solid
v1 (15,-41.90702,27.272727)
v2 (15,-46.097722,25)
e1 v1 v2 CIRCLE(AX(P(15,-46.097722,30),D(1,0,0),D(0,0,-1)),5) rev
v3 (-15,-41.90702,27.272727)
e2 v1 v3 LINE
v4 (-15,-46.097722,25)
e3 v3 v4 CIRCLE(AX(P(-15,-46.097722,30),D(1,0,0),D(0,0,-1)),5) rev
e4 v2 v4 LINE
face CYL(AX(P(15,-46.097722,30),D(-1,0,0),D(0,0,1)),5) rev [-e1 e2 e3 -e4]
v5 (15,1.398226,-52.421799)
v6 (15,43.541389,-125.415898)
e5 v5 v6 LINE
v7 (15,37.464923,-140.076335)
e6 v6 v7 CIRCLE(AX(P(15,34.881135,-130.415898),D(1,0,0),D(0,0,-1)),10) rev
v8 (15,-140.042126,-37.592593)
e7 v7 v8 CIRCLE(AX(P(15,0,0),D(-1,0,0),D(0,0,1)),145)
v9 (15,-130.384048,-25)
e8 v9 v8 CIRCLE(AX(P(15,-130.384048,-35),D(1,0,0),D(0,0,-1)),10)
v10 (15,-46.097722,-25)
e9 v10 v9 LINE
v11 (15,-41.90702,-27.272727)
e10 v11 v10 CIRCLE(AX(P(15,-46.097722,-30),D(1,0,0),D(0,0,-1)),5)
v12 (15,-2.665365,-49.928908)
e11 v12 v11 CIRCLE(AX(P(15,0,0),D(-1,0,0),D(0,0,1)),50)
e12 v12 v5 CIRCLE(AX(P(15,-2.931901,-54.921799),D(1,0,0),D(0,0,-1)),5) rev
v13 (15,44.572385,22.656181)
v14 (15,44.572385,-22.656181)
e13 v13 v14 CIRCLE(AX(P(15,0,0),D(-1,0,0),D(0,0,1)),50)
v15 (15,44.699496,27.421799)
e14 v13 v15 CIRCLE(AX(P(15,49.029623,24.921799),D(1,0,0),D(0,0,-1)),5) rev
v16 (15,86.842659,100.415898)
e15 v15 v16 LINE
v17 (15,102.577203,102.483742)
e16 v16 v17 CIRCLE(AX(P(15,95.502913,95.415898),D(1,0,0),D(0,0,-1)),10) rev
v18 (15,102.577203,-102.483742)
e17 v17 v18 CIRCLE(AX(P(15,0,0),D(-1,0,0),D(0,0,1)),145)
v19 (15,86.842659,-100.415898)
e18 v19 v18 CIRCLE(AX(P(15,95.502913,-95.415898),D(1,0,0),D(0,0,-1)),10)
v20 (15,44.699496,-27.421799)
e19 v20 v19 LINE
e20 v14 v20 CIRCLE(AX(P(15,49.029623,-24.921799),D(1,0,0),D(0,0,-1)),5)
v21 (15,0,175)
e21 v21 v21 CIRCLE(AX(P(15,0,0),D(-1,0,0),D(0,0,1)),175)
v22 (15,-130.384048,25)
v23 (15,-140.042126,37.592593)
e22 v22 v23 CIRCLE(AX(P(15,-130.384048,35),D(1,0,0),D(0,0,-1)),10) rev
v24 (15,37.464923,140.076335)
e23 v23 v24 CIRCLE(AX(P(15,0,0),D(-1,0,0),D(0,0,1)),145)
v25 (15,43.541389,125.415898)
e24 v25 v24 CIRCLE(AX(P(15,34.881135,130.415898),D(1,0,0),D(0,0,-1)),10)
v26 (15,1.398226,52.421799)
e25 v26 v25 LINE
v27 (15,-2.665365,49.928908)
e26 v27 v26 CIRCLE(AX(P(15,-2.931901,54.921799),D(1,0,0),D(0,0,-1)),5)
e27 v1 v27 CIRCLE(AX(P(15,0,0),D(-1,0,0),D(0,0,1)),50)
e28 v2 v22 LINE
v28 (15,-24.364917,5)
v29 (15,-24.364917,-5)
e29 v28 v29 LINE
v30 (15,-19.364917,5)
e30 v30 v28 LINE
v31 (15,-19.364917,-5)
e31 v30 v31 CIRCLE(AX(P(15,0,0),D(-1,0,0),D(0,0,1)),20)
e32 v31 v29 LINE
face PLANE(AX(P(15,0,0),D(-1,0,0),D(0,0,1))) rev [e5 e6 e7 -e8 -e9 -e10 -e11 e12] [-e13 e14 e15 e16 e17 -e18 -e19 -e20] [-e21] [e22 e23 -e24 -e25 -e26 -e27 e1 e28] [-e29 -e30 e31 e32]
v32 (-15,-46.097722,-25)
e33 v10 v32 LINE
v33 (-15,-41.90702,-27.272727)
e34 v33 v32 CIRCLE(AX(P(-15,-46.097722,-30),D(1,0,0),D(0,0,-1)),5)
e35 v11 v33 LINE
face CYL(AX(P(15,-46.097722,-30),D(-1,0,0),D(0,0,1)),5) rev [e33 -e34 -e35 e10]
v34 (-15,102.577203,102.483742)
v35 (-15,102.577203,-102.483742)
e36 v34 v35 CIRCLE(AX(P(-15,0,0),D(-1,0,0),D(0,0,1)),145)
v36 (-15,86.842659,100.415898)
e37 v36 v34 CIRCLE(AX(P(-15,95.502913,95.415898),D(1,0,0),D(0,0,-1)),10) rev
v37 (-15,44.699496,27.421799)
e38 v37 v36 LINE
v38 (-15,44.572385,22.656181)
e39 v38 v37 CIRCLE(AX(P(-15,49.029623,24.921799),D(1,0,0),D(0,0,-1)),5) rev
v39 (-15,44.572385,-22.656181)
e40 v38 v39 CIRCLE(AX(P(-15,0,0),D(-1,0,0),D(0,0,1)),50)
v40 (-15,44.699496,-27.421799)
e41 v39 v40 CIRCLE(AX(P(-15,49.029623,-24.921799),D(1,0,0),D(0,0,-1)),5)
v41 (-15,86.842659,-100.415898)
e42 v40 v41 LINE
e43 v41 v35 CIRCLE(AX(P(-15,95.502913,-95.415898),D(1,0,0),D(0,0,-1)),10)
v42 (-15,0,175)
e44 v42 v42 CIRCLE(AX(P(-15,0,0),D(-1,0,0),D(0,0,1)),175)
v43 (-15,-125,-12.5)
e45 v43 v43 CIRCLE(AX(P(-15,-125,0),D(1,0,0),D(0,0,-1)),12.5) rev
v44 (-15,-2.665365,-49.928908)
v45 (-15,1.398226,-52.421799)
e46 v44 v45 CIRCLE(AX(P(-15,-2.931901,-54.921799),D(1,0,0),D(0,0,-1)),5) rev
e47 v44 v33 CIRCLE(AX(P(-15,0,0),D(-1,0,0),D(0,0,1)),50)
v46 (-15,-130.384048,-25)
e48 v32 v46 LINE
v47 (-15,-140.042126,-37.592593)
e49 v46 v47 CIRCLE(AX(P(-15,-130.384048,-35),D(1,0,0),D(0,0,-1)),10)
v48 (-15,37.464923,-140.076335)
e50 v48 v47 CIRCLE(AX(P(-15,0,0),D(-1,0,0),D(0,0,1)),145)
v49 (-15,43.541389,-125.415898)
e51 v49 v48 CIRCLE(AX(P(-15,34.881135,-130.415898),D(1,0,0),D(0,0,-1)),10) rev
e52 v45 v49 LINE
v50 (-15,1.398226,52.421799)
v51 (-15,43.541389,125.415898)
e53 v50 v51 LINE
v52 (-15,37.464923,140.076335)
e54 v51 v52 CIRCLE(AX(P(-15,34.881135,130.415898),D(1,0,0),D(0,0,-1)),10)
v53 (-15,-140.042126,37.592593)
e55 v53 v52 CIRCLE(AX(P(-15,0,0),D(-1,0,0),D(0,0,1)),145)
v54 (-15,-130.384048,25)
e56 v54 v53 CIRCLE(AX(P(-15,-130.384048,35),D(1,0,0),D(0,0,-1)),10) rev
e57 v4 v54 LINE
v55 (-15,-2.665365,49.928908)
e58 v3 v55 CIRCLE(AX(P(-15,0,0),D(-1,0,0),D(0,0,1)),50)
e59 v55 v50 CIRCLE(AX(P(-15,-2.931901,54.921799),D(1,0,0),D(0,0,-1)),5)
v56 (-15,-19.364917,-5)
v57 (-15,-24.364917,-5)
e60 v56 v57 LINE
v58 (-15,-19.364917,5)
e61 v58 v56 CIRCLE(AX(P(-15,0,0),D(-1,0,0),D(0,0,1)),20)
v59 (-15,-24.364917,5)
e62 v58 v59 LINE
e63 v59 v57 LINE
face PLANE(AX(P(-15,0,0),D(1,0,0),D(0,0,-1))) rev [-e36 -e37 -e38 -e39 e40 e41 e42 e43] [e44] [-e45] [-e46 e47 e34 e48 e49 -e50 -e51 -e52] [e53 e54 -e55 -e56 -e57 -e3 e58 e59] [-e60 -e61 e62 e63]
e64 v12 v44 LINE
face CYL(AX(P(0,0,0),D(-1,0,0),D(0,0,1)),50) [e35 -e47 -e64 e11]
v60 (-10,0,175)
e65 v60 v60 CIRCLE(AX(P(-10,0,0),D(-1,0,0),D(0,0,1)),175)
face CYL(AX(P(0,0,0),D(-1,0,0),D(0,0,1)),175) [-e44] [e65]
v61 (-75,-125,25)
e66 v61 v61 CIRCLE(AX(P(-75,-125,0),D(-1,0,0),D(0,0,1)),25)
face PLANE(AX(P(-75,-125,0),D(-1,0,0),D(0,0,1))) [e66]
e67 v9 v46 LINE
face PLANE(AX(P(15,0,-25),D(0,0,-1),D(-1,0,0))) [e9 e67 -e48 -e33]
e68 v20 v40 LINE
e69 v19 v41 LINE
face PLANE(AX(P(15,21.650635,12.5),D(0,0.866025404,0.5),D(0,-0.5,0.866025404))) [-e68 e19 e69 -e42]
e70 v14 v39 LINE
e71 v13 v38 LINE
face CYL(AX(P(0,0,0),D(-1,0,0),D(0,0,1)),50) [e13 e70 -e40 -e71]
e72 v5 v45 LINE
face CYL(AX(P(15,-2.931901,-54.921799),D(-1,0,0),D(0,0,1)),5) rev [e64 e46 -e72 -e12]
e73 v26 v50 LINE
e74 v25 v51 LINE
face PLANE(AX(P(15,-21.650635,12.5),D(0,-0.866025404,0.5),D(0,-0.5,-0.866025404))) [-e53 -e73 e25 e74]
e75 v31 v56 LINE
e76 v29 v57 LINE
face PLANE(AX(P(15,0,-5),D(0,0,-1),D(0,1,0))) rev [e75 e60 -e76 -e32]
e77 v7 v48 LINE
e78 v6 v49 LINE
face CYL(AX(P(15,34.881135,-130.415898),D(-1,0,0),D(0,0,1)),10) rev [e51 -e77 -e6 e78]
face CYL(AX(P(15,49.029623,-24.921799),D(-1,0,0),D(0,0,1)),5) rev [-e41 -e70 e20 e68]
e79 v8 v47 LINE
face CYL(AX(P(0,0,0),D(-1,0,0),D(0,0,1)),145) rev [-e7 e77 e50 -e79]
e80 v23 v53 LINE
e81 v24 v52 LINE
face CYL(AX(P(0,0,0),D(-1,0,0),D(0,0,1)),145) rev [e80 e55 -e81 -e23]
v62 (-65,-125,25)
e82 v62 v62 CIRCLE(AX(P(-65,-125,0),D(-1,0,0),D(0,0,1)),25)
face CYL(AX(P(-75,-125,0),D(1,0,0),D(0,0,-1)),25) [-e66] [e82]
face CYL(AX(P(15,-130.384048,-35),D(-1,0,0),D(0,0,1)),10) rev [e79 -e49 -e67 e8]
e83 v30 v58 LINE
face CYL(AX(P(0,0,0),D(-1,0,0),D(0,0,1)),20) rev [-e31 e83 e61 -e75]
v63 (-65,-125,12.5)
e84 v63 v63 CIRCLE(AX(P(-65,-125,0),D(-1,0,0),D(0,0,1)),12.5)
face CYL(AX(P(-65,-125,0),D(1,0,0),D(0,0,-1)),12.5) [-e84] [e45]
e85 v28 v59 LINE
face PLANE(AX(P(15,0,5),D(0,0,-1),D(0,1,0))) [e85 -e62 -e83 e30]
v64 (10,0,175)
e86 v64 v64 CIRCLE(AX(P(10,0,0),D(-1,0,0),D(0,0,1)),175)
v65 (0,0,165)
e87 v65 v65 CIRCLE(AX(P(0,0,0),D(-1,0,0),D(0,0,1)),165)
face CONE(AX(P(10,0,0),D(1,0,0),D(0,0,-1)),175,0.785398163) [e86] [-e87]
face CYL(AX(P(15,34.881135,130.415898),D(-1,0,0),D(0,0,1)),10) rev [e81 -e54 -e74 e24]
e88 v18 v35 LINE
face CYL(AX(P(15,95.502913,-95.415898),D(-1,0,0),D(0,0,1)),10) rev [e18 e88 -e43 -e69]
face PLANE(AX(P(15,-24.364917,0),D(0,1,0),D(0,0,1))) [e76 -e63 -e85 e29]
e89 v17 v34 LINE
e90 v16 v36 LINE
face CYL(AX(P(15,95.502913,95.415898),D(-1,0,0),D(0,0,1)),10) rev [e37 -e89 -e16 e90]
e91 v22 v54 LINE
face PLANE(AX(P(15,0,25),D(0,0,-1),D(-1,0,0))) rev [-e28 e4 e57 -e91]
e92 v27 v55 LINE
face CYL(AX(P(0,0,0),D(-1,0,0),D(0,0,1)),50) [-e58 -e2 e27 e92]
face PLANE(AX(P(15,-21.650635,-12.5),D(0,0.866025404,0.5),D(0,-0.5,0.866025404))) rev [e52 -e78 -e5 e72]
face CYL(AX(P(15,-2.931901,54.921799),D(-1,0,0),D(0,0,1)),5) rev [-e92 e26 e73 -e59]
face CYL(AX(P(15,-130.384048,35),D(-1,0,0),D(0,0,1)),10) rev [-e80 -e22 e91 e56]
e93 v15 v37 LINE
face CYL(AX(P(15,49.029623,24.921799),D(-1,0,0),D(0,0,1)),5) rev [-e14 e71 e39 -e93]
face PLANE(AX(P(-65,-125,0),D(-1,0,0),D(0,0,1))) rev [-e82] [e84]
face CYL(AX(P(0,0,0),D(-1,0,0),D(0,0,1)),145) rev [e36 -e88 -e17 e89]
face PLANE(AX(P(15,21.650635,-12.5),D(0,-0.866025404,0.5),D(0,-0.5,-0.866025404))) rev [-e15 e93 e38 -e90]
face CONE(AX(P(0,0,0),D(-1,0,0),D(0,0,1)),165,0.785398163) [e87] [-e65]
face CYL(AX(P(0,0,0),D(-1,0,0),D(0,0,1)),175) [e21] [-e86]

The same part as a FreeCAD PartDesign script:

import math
import FreeCAD as App
import Part
import Sketcher
from FreeCAD import Vector
Q = App.Units.Quantity

doc = App.newDocument("Part")
body = doc.addObject("PartDesign::Body", "Body")
body.AllowCompound = True

# Sketch on XZ plane
sketch1 = doc.addObject("Sketcher::SketchObject", "Sketch")
body.addObject(sketch1)
sketch1.AttachmentSupport = (doc.XZ_Plane, [""])
sketch1.MapMode = "FlatFace"
sketch1.addGeometry([
    Part.LineSegment(Vector(-15, -175, 0), Vector(-15, -145, 0)),  # 0
    Part.LineSegment(Vector(-15, -145, 0), Vector(15, -145, 0)),  # 1
    Part.LineSegment(Vector(15, -145, 0), Vector(15, -175, 0)),  # 2
    Part.LineSegment(Vector(15, -175, 0), Vector(10, -175, 0)),  # 3
    Part.LineSegment(Vector(10, -175, 0), Vector(0, -165, 0)),  # 4
    Part.LineSegment(Vector(0, -165, 0), Vector(-10, -175, 0)),  # 5
    Part.LineSegment(Vector(-10, -175, 0), Vector(-15, -175, 0)),  # 6
    Part.LineSegment(Vector(-15, -50, 0), Vector(-15, -20, 0)),  # 7
    Part.LineSegment(Vector(-15, -20, 0), Vector(15, -20, 0)),  # 8
    Part.LineSegment(Vector(15, -20, 0), Vector(15, -50, 0)),  # 9
    Part.LineSegment(Vector(15, -50, 0), Vector(-15, -50, 0)),  # 10
], False)
sketch1.addConstraint([
    Sketcher.Constraint("Coincident", 0, 2, 1, 1),
    Sketcher.Constraint("Coincident", 1, 2, 2, 1),
    Sketcher.Constraint("Coincident", 2, 2, 3, 1),
    Sketcher.Constraint("Coincident", 3, 2, 4, 1),
    Sketcher.Constraint("Coincident", 4, 2, 5, 1),
    Sketcher.Constraint("Coincident", 5, 2, 6, 1),
    Sketcher.Constraint("Coincident", 6, 2, 0, 1),
    Sketcher.Constraint("Coincident", 7, 2, 8, 1),
    Sketcher.Constraint("Coincident", 8, 2, 9, 1),
    Sketcher.Constraint("Coincident", 9, 2, 10, 1),
    Sketcher.Constraint("Coincident", 10, 2, 7, 1),
    Sketcher.Constraint("Vertical", 0),
    Sketcher.Constraint("Horizontal", 1),
    Sketcher.Constraint("Vertical", 2),
    Sketcher.Constraint("Horizontal", 3),
    Sketcher.Constraint("Horizontal", 6),
    Sketcher.Constraint("Vertical", 7),
    Sketcher.Constraint("Horizontal", 8),
    Sketcher.Constraint("Vertical", 9),
    Sketcher.Constraint("Horizontal", 10),
    Sketcher.Constraint("Symmetric", 3, 2, 5, 2, -2),
    Sketcher.Constraint("PointOnObject", 4, 2, -2),
    Sketcher.Constraint("Perpendicular", 4, 5),
    Sketcher.Constraint("Vertical", 6, 2, 7, 2),
    Sketcher.Constraint("Vertical", 2, 2, 8, 2),
    Sketcher.Constraint("Equal", 3, 6),
    Sketcher.Constraint("Equal", 10, 0),
    Sketcher.Constraint("Equal", 2, 7),
    Sketcher.Constraint("DistanceX", 1, 1, 1, 2, Q("30 mm")),
    Sketcher.Constraint("DistanceX", 3, 2, 3, 1, Q("5 mm")),
    Sketcher.Constraint("DistanceY", 0, 2, -1, 1, Q("145 mm")),
    Sketcher.Constraint("DistanceY", 7, 2, -1, 1, Q("20 mm")),
])
revolution = doc.addObject("PartDesign::Revolution", "Revolution")
body.addObject(revolution)
revolution.Profile = sketch1
revolution.ReferenceAxis = (sketch1, ["H_Axis"])
revolution.Angle = 360

# Sketch on YZ plane
sketch2 = doc.addObject("Sketcher::SketchObject", "Sketch001")
body.addObject(sketch2)
sketch2.AttachmentSupport = (doc.YZ_Plane, [""])
sketch2.MapMode = "FlatFace"
sketch2.addGeometry([
    Part.LineSegment(Vector(-130.4, -25, 0), Vector(-46.1, -25, 0)),  # 0
    Part.ArcOfCircle(Part.Circle(Vector(-46.1, -30, 0), Vector(0, 0, 1), 5), math.radians(33), math.radians(90)),  # 1
    Part.ArcOfCircle(Part.Circle(Vector(0, 0, 0), Vector(0, 0, 1), 50), math.radians(147), math.radians(213)),  # 2
    Part.ArcOfCircle(Part.Circle(Vector(-46.1, 30, 0), Vector(0, 0, 1), 5), math.radians(-90), math.radians(-33)),  # 3
    Part.LineSegment(Vector(-46.1, 25, 0), Vector(-130.4, 25, 0)),  # 4
    Part.ArcOfCircle(Part.Circle(Vector(-130.4, 35, 0), Vector(0, 0, 1), 10), math.radians(165), math.radians(270)),  # 5
    Part.ArcOfCircle(Part.Circle(Vector(0, 0, 0), Vector(0, 0, 1), 145), math.radians(165), math.radians(195)),  # 6
    Part.ArcOfCircle(Part.Circle(Vector(-130.4, -35, 0), Vector(0, 0, 1), 10), math.radians(90), math.radians(195)),  # 7
    Part.ArcOfCircle(Part.Circle(Vector(-2.9, 54.9, 0), Vector(0, 0, 1), 5), math.radians(-87), math.radians(-30)),  # 8
    Part.ArcOfCircle(Part.Circle(Vector(0, 0, 0), Vector(0, 0, 1), 50), math.radians(27), math.radians(93)),  # 9
    Part.ArcOfCircle(Part.Circle(Vector(49, 24.9, 0), Vector(0, 0, 1), 5), math.radians(150), math.radians(207)),  # 10
    Part.LineSegment(Vector(44.7, 27.4, 0), Vector(86.8, 100.4, 0)),  # 11
    Part.ArcOfCircle(Part.Circle(Vector(95.5, 95.4, 0), Vector(0, 0, 1), 10), math.radians(45), math.radians(150)),  # 12
    Part.ArcOfCircle(Part.Circle(Vector(0, 0, 0), Vector(0, 0, 1), 145), math.radians(45), math.radians(75)),  # 13
    Part.ArcOfCircle(Part.Circle(Vector(34.9, 130.4, 0), Vector(0, 0, 1), 10), math.radians(-30), math.radians(75)),  # 14
    Part.LineSegment(Vector(43.5, 125.4, 0), Vector(1.4, 52.4, 0)),  # 15
    Part.ArcOfCircle(Part.Circle(Vector(0, 0, 0), Vector(0, 0, 1), 50), math.radians(-93), math.radians(-27)),  # 16
    Part.ArcOfCircle(Part.Circle(Vector(-2.9, -54.9, 0), Vector(0, 0, 1), 5), math.radians(30), math.radians(87)),  # 17
    Part.LineSegment(Vector(1.4, -52.4, 0), Vector(43.5, -125.4, 0)),  # 18
    Part.ArcOfCircle(Part.Circle(Vector(34.9, -130.4, 0), Vector(0, 0, 1), 10), math.radians(-75), math.radians(30)),  # 19
    Part.ArcOfCircle(Part.Circle(Vector(0, 0, 0), Vector(0, 0, 1), 145), math.radians(-75), math.radians(-45)),  # 20
    Part.ArcOfCircle(Part.Circle(Vector(95.5, -95.4, 0), Vector(0, 0, 1), 10), math.radians(-150), math.radians(-45)),  # 21
    Part.LineSegment(Vector(86.8, -100.4, 0), Vector(44.7, -27.4, 0)),  # 22
    Part.ArcOfCircle(Part.Circle(Vector(49, -24.9, 0), Vector(0, 0, 1), 5), math.radians(153), math.radians(210)),  # 23
], False)
sketch2.addConstraint([
    Sketcher.Constraint("Tangent", 0, 2, 1, 2),
    Sketcher.Constraint("Tangent", 1, 1, 2, 2),
    Sketcher.Constraint("Tangent", 2, 1, 3, 2),
    Sketcher.Constraint("Tangent", 3, 1, 4, 1),
    Sketcher.Constraint("Tangent", 4, 2, 5, 2),
    Sketcher.Constraint("Tangent", 5, 1, 6, 1),
    Sketcher.Constraint("Tangent", 6, 2, 7, 2),
    Sketcher.Constraint("Tangent", 7, 1, 0, 1),
    Sketcher.Constraint("Tangent", 8, 1, 9, 2),
    Sketcher.Constraint("Tangent", 9, 1, 10, 2),
    Sketcher.Constraint("Tangent", 10, 1, 11, 1),
    Sketcher.Constraint("Tangent", 11, 2, 12, 2),
    Sketcher.Constraint("Tangent", 12, 1, 13, 1),
    Sketcher.Constraint("Tangent", 13, 2, 14, 2),
    Sketcher.Constraint("Tangent", 14, 1, 15, 1),
    Sketcher.Constraint("Tangent", 15, 2, 8, 2),
    Sketcher.Constraint("Tangent", 16, 1, 17, 2),
    Sketcher.Constraint("Tangent", 17, 1, 18, 1),
    Sketcher.Constraint("Tangent", 18, 2, 19, 2),
    Sketcher.Constraint("Tangent", 19, 1, 20, 1),
    Sketcher.Constraint("Tangent", 20, 2, 21, 2),
    Sketcher.Constraint("Tangent", 21, 1, 22, 1),
    Sketcher.Constraint("Tangent", 22, 2, 23, 2),
    Sketcher.Constraint("Tangent", 23, 1, 16, 2),
    Sketcher.Constraint("Horizontal", 0),
    Sketcher.Constraint("Horizontal", 4),
    Sketcher.Constraint("Coincident", 2, 3, -1, 1),
    Sketcher.Constraint("Coincident", 6, 3, -1, 1),
    Sketcher.Constraint("Coincident", 9, 3, -1, 1),
    Sketcher.Constraint("Coincident", 13, 3, -1, 1),
    Sketcher.Constraint("Coincident", 16, 3, -1, 1),
    Sketcher.Constraint("Coincident", 20, 3, -1, 1),
    Sketcher.Constraint("Equal", 1, 3),
    Sketcher.Constraint("Equal", 5, 7),
    Sketcher.Constraint("Equal", 3, 8),
    Sketcher.Constraint("Equal", 2, 9),
    Sketcher.Constraint("Equal", 8, 10),
    Sketcher.Constraint("Equal", 7, 12),
    Sketcher.Constraint("Equal", 6, 13),
    Sketcher.Constraint("Equal", 12, 14),
    Sketcher.Constraint("Equal", 9, 16),
    Sketcher.Constraint("Equal", 10, 17),
    Sketcher.Constraint("Equal", 14, 19),
    Sketcher.Constraint("Equal", 13, 20),
    Sketcher.Constraint("Equal", 19, 21),
    Sketcher.Constraint("Equal", 17, 23),
    Sketcher.Constraint("Symmetric", 15, 2, 17, 1, -1),
    Sketcher.Constraint("Symmetric", 11, 2, 21, 1, -1),
    Sketcher.Constraint("Parallel", 11, 15),
    Sketcher.Constraint("Vertical", 1, 3, 3, 3),
    Sketcher.Constraint("Equal", 11, 15),
    Sketcher.Constraint("Radius", 1, Q("5 mm")),
    Sketcher.Constraint("Radius", 2, Q("50 mm")),
    Sketcher.Constraint("Radius", 5, Q("10 mm")),
    Sketcher.Constraint("Radius", 6, Q("145 mm")),
    Sketcher.Constraint("Angle", 11, Q("60 deg")),
    Sketcher.Constraint("DistanceY", 1, 3, -1, 1, Q("30 mm")),
    Sketcher.Constraint("DistanceY", 10, 3, 8, 3, Q("30 mm")),
])
pad1 = doc.addObject("PartDesign::Pad", "Pad")
body.addObject(pad1)
pad1.Profile = sketch2
pad1.Length = 30
pad1.Midplane = True

# Sketch on YZ plane
sketch3 = doc.addObject("Sketcher::SketchObject", "Sketch002")
body.addObject(sketch3)
sketch3.AttachmentSupport = (doc.YZ_Plane, [""])
sketch3.MapMode = "FlatFace"
sketch3.AttachmentOffset = App.Placement(Vector(0, 0, -15), App.Rotation())
sketch3.addGeometry(Part.Circle(Vector(-125, 0, 0), Vector(0, 0, 1), 12), False)
sketch3.addConstraint([
    Sketcher.Constraint("PointOnObject", 0, 3, -1),
    Sketcher.Constraint("Diameter", 0, Q("25 mm")),
    Sketcher.Constraint("DistanceX", 0, 3, -1, 1, Q("125 mm")),
])
pad2 = doc.addObject("PartDesign::Pad", "Pad001")
body.addObject(pad2)
pad2.Profile = sketch3
pad2.Length = 50
pad2.Reversed = True

# Sketch on YZ plane
sketch4 = doc.addObject("Sketcher::SketchObject", "Sketch003")
body.addObject(sketch4)
sketch4.AttachmentSupport = (doc.YZ_Plane, [""])
sketch4.MapMode = "FlatFace"
sketch4.AttachmentOffset = App.Placement(Vector(0, 0, -65), App.Rotation())
sketch4.addGeometry(Part.Circle(Vector(-125, 0, 0), Vector(0, 0, 1), 25), False)
sketch4.addConstraint([
    Sketcher.Constraint("PointOnObject", 0, 3, -1),
    Sketcher.Constraint("Diameter", 0, Q("50 mm")),
    Sketcher.Constraint("DistanceX", 0, 3, -1, 1, Q("125 mm")),
])
pad3 = doc.addObject("PartDesign::Pad", "Pad002")
body.addObject(pad3)
pad3.Profile = sketch4
pad3.Length = 10
pad3.Reversed = True

# Sketch on YZ plane
sketch5 = doc.addObject("Sketcher::SketchObject", "Sketch004")
body.addObject(sketch5)
sketch5.AttachmentSupport = (doc.YZ_Plane, [""])
sketch5.MapMode = "FlatFace"
sketch5.AttachmentOffset = App.Placement(Vector(0, 0, -15), App.Rotation())
sketch5.addGeometry([
    Part.LineSegment(Vector(-24, 5, 0), Vector(-19, 5, 0)),
    Part.ArcOfCircle(Part.Circle(Vector(0, 0, 0), Vector(0, 0, 1), 20), math.radians(166), math.radians(194)),
    Part.LineSegment(Vector(-19, -5, 0), Vector(-24, -5, 0)),
    Part.LineSegment(Vector(-24, -5, 0), Vector(-24, 5, 0)),
], False)
sketch5.addConstraint([
    Sketcher.Constraint("Coincident", 0, 2, 1, 1),
    Sketcher.Constraint("Coincident", 1, 2, 2, 1),
    Sketcher.Constraint("Coincident", 2, 2, 3, 1),
    Sketcher.Constraint("Coincident", 3, 2, 0, 1),
    Sketcher.Constraint("Horizontal", 0),
    Sketcher.Constraint("Horizontal", 2),
    Sketcher.Constraint("Vertical", 3),
    Sketcher.Constraint("Coincident", 1, 3, -1, 1),
    Sketcher.Constraint("Vertical", 0, 2, 1, 2),
    Sketcher.Constraint("Radius", 1, Q("20 mm")),
    Sketcher.Constraint("DistanceX", 0, 1, 0, 2, Q("5 mm")),
    Sketcher.Constraint("DistanceY", 3, 1, 3, 2, Q("10 mm")),
])
pocket1 = doc.addObject("PartDesign::Pocket", "Pocket")
body.addObject(pocket1)
pocket1.Profile = sketch5
pocket1.Type = "ThroughAll"
pocket1.Reversed = True

doc.recompute()
